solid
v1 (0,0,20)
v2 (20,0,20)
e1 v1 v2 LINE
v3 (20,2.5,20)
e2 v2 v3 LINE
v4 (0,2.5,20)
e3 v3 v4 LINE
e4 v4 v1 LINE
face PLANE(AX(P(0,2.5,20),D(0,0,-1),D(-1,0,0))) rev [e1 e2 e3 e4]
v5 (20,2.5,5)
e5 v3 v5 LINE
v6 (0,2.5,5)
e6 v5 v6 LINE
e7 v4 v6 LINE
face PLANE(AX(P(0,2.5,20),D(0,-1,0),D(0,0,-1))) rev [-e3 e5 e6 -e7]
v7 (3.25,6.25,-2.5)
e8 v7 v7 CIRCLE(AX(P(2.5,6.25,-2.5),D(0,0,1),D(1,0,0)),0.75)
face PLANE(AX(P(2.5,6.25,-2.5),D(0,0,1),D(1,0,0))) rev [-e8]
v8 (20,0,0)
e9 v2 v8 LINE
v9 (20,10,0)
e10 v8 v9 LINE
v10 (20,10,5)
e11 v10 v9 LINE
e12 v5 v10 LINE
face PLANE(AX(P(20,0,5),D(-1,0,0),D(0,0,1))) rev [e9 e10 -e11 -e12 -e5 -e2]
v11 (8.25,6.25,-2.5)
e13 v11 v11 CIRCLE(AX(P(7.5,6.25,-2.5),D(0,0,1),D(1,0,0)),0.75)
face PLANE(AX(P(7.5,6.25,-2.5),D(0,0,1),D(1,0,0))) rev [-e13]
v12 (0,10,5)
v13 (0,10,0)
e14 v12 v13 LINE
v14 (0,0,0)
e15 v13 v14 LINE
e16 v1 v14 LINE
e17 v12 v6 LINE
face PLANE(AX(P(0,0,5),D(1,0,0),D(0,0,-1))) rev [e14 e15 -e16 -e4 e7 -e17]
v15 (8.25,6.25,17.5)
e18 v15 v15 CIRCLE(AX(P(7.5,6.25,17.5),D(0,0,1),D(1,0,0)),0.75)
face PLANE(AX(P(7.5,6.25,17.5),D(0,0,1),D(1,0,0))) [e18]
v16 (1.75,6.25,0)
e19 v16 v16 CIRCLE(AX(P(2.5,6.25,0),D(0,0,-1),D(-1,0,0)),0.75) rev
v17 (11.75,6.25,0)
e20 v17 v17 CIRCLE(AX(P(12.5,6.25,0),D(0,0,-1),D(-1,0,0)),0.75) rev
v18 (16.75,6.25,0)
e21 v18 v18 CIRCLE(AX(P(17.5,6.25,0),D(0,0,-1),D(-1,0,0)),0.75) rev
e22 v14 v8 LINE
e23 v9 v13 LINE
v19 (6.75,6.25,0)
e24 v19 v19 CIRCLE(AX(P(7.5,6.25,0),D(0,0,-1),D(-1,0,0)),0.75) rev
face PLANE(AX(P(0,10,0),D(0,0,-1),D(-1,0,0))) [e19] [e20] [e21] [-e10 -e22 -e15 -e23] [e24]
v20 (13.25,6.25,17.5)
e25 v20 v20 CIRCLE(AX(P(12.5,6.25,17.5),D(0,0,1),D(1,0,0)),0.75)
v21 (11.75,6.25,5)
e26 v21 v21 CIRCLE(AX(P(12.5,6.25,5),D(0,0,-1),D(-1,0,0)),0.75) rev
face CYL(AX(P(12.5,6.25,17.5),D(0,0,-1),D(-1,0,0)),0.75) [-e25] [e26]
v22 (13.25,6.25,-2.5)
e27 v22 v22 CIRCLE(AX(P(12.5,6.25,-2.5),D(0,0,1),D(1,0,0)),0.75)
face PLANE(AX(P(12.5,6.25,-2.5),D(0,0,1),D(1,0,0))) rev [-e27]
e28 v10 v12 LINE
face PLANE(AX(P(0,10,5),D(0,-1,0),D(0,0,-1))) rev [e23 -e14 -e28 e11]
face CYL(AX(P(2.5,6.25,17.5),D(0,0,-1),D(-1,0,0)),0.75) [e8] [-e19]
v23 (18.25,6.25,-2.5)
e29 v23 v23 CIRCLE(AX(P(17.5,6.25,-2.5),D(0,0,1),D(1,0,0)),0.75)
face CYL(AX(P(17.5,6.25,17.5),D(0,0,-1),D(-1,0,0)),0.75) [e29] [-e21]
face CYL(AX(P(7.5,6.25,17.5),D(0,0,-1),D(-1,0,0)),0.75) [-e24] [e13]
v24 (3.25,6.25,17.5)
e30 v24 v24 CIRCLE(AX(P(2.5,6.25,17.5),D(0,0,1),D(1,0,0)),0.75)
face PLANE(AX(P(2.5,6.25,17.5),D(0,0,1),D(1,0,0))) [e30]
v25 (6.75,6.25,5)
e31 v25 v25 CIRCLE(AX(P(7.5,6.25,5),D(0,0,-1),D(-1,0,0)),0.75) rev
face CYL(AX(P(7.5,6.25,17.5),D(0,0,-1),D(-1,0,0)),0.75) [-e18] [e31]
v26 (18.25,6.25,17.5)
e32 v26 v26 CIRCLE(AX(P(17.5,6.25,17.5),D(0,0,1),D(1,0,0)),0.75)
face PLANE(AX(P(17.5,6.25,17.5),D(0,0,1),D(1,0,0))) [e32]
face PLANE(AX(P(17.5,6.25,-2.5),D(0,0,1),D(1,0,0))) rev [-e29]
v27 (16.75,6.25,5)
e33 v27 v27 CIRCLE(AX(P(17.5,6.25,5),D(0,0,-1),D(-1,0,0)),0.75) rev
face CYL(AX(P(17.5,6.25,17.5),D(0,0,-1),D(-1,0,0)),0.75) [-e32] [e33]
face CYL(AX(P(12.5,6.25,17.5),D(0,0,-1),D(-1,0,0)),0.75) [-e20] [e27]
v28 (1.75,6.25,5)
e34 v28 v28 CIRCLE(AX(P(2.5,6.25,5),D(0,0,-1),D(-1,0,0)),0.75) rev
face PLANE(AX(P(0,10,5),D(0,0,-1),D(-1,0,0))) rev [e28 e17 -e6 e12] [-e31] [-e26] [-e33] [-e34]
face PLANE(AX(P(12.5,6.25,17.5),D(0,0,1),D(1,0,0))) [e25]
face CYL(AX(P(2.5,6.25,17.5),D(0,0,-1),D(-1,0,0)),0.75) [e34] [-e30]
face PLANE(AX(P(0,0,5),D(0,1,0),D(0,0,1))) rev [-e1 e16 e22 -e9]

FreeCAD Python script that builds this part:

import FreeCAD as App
import Part
import Sketcher

V = App.Vector

doc = App.newDocument("Part")
body = doc.addObject("PartDesign::Body", "Body")

# Sketch on XY plane
sketch1 = doc.addObject("Sketcher::SketchObject", "Sketch")
body.addObject(sketch1)
sketch1.AttachmentSupport = (doc.XY_Plane, [""])
sketch1.MapMode = "FlatFace"
sketch1.addGeometry(Part.LineSegment(V(0, 10, 0), V(0, 0, 0)), False)
sketch1.addGeometry(Part.LineSegment(V(0, 0, 0), V(20, 0, 0)), False)
sketch1.addGeometry(Part.LineSegment(V(20, 0, 0), V(20, 10, 0)), False)
sketch1.addGeometry(Part.LineSegment(V(20, 10, 0), V(0, 10, 0)), False)
sketch1.addConstraint(Sketcher.Constraint("Coincident", 0, 2, 1, 1))
sketch1.addConstraint(Sketcher.Constraint("Coincident", 1, 2, 2, 1))
sketch1.addConstraint(Sketcher.Constraint("Coincident", 2, 2, 3, 1))
sketch1.addConstraint(Sketcher.Constraint("Coincident", 3, 2, 0, 1))
sketch1.addConstraint(Sketcher.Constraint("Vertical", 0))
sketch1.addConstraint(Sketcher.Constraint("Horizontal", 1))
sketch1.addConstraint(Sketcher.Constraint("Vertical", 2))
sketch1.addConstraint(Sketcher.Constraint("Horizontal", 3))
sketch1.addConstraint(Sketcher.Constraint("Coincident", 0, 2, -1, 1))
sketch1.addConstraint(Sketcher.Constraint("DistanceX", 1, 1, 1, 2, 20.0))
sketch1.addConstraint(Sketcher.Constraint("DistanceY", 0, 2, 0, 1, 10.0))
pad1 = doc.addObject("PartDesign::Pad", "Pad")
body.addObject(pad1)
pad1.Profile = sketch1
pad1.Length = 5

# Sketch on XY plane
sketch2 = doc.addObject("Sketcher::SketchObject", "Sketch001")
body.addObject(sketch2)
sketch2.AttachmentSupport = (doc.XY_Plane, [""])
sketch2.MapMode = "FlatFace"
sketch2.AttachmentOffset = App.Placement(V(0, 0, 5), App.Rotation())
sketch2.addGeometry(Part.LineSegment(V(0, 2.5, 0), V(0, 0, 0)), False)
sketch2.addGeometry(Part.LineSegment(V(0, 0, 0), V(20, 0, 0)), False)
sketch2.addGeometry(Part.LineSegment(V(20, 0, 0), V(20, 2.5, 0)), False)
sketch2.addGeometry(Part.LineSegment(V(20, 2.5, 0), V(0, 2.5, 0)), False)
sketch2.addConstraint(Sketcher.Constraint("Coincident", 0, 2, 1, 1))
sketch2.addConstraint(Sketcher.Constraint("Coincident", 1, 2, 2, 1))
sketch2.addConstraint(Sketcher.Constraint("Coincident", 2, 2, 3, 1))
sketch2.addConstraint(Sketcher.Constraint("Coincident", 3, 2, 0, 1))
sketch2.addConstraint(Sketcher.Constraint("Vertical", 0))
sketch2.addConstraint(Sketcher.Constraint("Horizontal", 1))
sketch2.addConstraint(Sketcher.Constraint("Vertical", 2))
sketch2.addConstraint(Sketcher.Constraint("Horizontal", 3))
sketch2.addConstraint(Sketcher.Constraint("Coincident", 0, 2, -1, 1))
sketch2.addConstraint(Sketcher.Constraint("DistanceX", 1, 1, 1, 2, 20.0))
sketch2.addConstraint(Sketcher.Constraint("DistanceY", 0, 2, 0, 1, 2.5))
pad2 = doc.addObject("PartDesign::Pad", "Pad001")
body.addObject(pad2)
pad2.Profile = sketch2
pad2.Length = 15

# Sketch on XY plane
sketch3 = doc.addObject("Sketcher::SketchObject", "Sketch002")
body.addObject(sketch3)
sketch3.AttachmentSupport = (doc.XY_Plane, [""])
sketch3.MapMode = "FlatFace"
sketch3.AttachmentOffset = App.Placement(V(0, 0, 5), App.Rotation())
sketch3.addGeometry(Part.Circle(V(12.5, 6.25, 0), V(0, 0, 1), 0.75), False)
sketch3.addGeometry(Part.Circle(V(17.5, 6.25, 0), V(0, 0, 1), 0.75), False)
sketch3.addGeometry(Part.Circle(V(2.5, 6.25, 0), V(0, 0, 1), 0.75), False)
sketch3.addGeometry(Part.Circle(V(7.5, 6.25, 0), V(0, 0, 1), 0.75), False)
sketch3.addConstraint(Sketcher.Constraint("Equal", 0, 1))
sketch3.addConstraint(Sketcher.Constraint("Equal", 1, 2))
sketch3.addConstraint(Sketcher.Constraint("Equal", 2, 3))
sketch3.addConstraint(Sketcher.Constraint("Horizontal", 0, 3, 1, 3))
sketch3.addConstraint(Sketcher.Constraint("Horizontal", 1, 3, 2, 3))
sketch3.addConstraint(Sketcher.Constraint("Horizontal", 2, 3, 3, 3))
sketch3.addConstraint(Sketcher.Constraint("Diameter", 0, 1.5))
sketch3.addConstraint(Sketcher.Constraint("DistanceX", 0, 3, 1, 3, 5.0))
sketch3.addConstraint(Sketcher.Constraint("DistanceX", 2, 3, 0, 3, 10.0))
sketch3.addConstraint(Sketcher.Constraint("DistanceX", 3, 3, 0, 3, 5.0))
sketch3.addConstraint(Sketcher.Constraint("DistanceX", -1, 1, 0, 3, 12.5))
sketch3.addConstraint(Sketcher.Constraint("DistanceY", -1, 1, 0, 3, 6.25))
pad3 = doc.addObject("PartDesign::Pad", "Pad002")
body.addObject(pad3)
pad3.Profile = sketch3
pad3.Type = "TwoLengths"
pad3.Length = 12.5
pad3.Length2 = 7.5

doc.recompute()
